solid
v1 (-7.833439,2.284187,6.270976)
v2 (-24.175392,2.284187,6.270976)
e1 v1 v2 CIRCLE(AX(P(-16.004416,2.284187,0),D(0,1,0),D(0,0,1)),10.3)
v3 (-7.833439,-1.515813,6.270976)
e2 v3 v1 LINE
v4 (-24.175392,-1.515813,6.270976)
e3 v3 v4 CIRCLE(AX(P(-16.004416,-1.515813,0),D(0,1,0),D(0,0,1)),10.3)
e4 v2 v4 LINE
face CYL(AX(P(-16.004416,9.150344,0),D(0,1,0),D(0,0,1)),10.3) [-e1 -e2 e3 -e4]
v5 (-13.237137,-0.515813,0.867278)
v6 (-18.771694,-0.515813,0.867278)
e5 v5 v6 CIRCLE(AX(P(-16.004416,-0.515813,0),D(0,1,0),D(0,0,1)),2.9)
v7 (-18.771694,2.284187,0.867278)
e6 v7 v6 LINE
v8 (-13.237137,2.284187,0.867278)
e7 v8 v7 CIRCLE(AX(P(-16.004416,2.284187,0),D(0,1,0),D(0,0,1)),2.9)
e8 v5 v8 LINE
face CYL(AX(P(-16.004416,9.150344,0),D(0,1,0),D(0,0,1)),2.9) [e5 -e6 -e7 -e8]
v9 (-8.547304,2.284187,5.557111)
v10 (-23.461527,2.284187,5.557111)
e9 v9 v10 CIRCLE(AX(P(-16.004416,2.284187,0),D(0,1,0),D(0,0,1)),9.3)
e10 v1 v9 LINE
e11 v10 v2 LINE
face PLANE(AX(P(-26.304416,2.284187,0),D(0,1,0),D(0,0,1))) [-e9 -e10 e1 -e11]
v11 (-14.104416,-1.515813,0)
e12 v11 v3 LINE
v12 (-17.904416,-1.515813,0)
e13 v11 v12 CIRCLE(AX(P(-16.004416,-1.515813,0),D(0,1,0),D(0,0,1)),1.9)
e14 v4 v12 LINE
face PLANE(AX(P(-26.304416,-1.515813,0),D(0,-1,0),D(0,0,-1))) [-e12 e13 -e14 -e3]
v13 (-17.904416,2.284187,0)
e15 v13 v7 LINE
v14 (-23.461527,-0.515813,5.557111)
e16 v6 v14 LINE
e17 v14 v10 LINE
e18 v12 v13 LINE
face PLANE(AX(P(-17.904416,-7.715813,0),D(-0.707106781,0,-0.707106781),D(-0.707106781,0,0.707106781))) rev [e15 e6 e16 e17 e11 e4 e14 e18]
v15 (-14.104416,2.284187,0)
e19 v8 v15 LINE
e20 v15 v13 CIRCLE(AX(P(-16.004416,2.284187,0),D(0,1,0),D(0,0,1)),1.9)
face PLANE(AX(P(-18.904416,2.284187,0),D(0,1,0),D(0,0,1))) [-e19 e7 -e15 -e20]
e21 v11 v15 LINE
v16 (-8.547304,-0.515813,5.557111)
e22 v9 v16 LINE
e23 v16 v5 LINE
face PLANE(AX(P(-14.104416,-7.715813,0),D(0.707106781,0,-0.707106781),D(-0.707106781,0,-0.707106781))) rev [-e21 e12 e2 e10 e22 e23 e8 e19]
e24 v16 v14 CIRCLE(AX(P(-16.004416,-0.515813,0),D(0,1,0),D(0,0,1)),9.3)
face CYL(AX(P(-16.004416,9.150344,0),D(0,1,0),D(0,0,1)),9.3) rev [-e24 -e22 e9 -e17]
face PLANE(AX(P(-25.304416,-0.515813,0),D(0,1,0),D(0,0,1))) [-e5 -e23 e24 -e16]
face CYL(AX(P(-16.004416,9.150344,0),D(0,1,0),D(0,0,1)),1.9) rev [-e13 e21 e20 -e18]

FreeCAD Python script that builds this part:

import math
import FreeCAD as App
import Part
import Sketcher

V = App.Vector
Q = App.Units.Quantity

doc = App.newDocument("Part")
body = doc.addObject("PartDesign::Body", "Body")

# Sketch on XY plane
sketch1 = body.newObject("Sketcher::SketchObject", "Sketch")
sketch1.AttachmentSupport = (doc.getObject("XY_Plane"), [""])
sketch1.MapMode = "FlatFace"
sketch1.addGeometry(Part.LineSegment(V(-17.904416, -1.515813, 0), V(-17.904416, 2.284187, 0)), False)
sketch1.addGeometry(Part.LineSegment(V(-17.904416, 2.284187, 0), V(-18.904416, 2.284187, 0)), False)
sketch1.addGeometry(Part.LineSegment(V(-18.904416, 2.284187, 0), V(-18.904416, -0.515813, 0)), False)
sketch1.addGeometry(Part.LineSegment(V(-18.904416, -0.515813, 0), V(-25.304416, -0.515813, 0)), False)
sketch1.addGeometry(Part.LineSegment(V(-25.304416, -0.515813, 0), V(-25.304416, 2.284187, 0)), False)
sketch1.addGeometry(Part.LineSegment(V(-25.304416, 2.284187, 0), V(-26.304416, 2.284187, 0)), False)
sketch1.addGeometry(Part.LineSegment(V(-26.304416, 2.284187, 0), V(-26.304416, -1.515813, 0)), False)
sketch1.addGeometry(Part.LineSegment(V(-26.304416, -1.515813, 0), V(-17.904416, -1.515813, 0)), False)
sketch1.addGeometry(Part.LineSegment(V(-16.004416, 2.284187, 0), V(-16.004416, -1.515813, 0)), True)  # axis
sketch1.addConstraint(Sketcher.Constraint("Coincident", 0, 2, 1, 1))
sketch1.addConstraint(Sketcher.Constraint("Coincident", 1, 2, 2, 1))
sketch1.addConstraint(Sketcher.Constraint("Coincident", 2, 2, 3, 1))
sketch1.addConstraint(Sketcher.Constraint("Coincident", 3, 2, 4, 1))
sketch1.addConstraint(Sketcher.Constraint("Coincident", 4, 2, 5, 1))
sketch1.addConstraint(Sketcher.Constraint("Coincident", 5, 2, 6, 1))
sketch1.addConstraint(Sketcher.Constraint("Coincident", 6, 2, 7, 1))
sketch1.addConstraint(Sketcher.Constraint("Coincident", 7, 2, 0, 1))
sketch1.addConstraint(Sketcher.Constraint("Vertical", 0))
sketch1.addConstraint(Sketcher.Constraint("Horizontal", 1))
sketch1.addConstraint(Sketcher.Constraint("Vertical", 2))
sketch1.addConstraint(Sketcher.Constraint("Horizontal", 3))
sketch1.addConstraint(Sketcher.Constraint("Vertical", 4))
sketch1.addConstraint(Sketcher.Constraint("Horizontal", 5))
sketch1.addConstraint(Sketcher.Constraint("Vertical", 6))
sketch1.addConstraint(Sketcher.Constraint("Horizontal", 7))
sketch1.addConstraint(Sketcher.Constraint("Vertical", 8))
sketch1.addConstraint(Sketcher.Constraint("Horizontal", 1, 2, 4, 2))
sketch1.addConstraint(Sketcher.Constraint("Horizontal", 5, 2, 8, 1))
sketch1.addConstraint(Sketcher.Constraint("Horizontal", 7, 2, 8, 2))
sketch1.addConstraint(Sketcher.Constraint("Equal", 1, 5))
sketch1.addConstraint(Sketcher.Constraint("DistanceX", 1, 2, 1, 1, Q("1 mm")))
sketch1.addConstraint(Sketcher.Constraint("DistanceX", 3, 2, 3, 1, Q("6.4 mm")))
sketch1.addConstraint(Sketcher.Constraint("DistanceY", 0, 1, 0, 2, Q("3.8 mm")))
sketch1.addConstraint(Sketcher.Constraint("DistanceY", 2, 2, 2, 1, Q("2.8 mm")))
sketch1.addConstraint(Sketcher.Constraint("DistanceX", 0, 2, 8, 1, Q("1.9 mm")))
sketch1.addConstraint(Sketcher.Constraint("DistanceX", 0, 2, -1, 1, Q("17.904416 mm")))
sketch1.addConstraint(Sketcher.Constraint("DistanceY", -1, 1, 0, 2, Q("2.284187 mm")))
revolution = body.newObject("PartDesign::Revolution", "Revolution")
revolution.Profile = sketch1
revolution.ReferenceAxis = (sketch1, ["Axis0"])
revolution.Angle = 360

# Sketch on XZ plane
sketch2 = body.newObject("Sketcher::SketchObject", "Sketch001")
sketch2.AttachmentSupport = (doc.getObject("XZ_Plane"), [""])
sketch2.MapMode = "FlatFace"
sketch2.AttachmentOffset = App.Placement(V(0, 0, -2.284187), App.Rotation())
sketch2.addGeometry(Part.LineSegment(V(-17.904416, 0, 0), V(-24.175392, 6.270976, 0)), False)
sketch2.addGeometry(Part.ArcOfCircle(Part.Circle(V(-16.004416, 0, 0), V(0, 0, 1), 10.3), math.radians(37.505144), math.radians(142.494856)), False)
sketch2.addGeometry(Part.LineSegment(V(-7.833439, 6.270976, 0), V(-14.104416, 0, 0)), False)
sketch2.addGeometry(Part.ArcOfCircle(Part.Circle(V(-16.004416, 0, 0), V(0, 0, 1), 1.9), math.radians(0), math.radians(180)), False)
sketch2.addConstraint(Sketcher.Constraint("Coincident", 0, 2, 1, 2))
sketch2.addConstraint(Sketcher.Constraint("Coincident", 1, 1, 2, 1))
sketch2.addConstraint(Sketcher.Constraint("Coincident", 2, 2, 3, 1))
sketch2.addConstraint(Sketcher.Constraint("Coincident", 3, 2, 0, 1))
sketch2.addConstraint(Sketcher.Constraint("Coincident", 3, 3, 1, 3))
sketch2.addConstraint(Sketcher.Constraint("PointOnObject", 1, 3, -1))
sketch2.addConstraint(Sketcher.Constraint("PointOnObject", 2, 2, -1))
sketch2.addConstraint(Sketcher.Constraint("PointOnObject", 3, 2, -1))
sketch2.addConstraint(Sketcher.Constraint("Perpendicular", 0, 2))
sketch2.addConstraint(Sketcher.Constraint("Horizontal", 0, 2, 1, 1))
sketch2.addConstraint(Sketcher.Constraint("Radius", 1, Q("10.3 mm")))
sketch2.addConstraint(Sketcher.Constraint("Radius", 3, Q("1.9 mm")))
sketch2.addConstraint(Sketcher.Constraint("DistanceX", 0, 2, -1, 1, Q("24.175392 mm")))
pocket1 = body.newObject("PartDesign::Pocket", "Pocket")
pocket1.Profile = sketch2
pocket1.Length = 10
pocket1.Reversed = True

doc.recompute()
